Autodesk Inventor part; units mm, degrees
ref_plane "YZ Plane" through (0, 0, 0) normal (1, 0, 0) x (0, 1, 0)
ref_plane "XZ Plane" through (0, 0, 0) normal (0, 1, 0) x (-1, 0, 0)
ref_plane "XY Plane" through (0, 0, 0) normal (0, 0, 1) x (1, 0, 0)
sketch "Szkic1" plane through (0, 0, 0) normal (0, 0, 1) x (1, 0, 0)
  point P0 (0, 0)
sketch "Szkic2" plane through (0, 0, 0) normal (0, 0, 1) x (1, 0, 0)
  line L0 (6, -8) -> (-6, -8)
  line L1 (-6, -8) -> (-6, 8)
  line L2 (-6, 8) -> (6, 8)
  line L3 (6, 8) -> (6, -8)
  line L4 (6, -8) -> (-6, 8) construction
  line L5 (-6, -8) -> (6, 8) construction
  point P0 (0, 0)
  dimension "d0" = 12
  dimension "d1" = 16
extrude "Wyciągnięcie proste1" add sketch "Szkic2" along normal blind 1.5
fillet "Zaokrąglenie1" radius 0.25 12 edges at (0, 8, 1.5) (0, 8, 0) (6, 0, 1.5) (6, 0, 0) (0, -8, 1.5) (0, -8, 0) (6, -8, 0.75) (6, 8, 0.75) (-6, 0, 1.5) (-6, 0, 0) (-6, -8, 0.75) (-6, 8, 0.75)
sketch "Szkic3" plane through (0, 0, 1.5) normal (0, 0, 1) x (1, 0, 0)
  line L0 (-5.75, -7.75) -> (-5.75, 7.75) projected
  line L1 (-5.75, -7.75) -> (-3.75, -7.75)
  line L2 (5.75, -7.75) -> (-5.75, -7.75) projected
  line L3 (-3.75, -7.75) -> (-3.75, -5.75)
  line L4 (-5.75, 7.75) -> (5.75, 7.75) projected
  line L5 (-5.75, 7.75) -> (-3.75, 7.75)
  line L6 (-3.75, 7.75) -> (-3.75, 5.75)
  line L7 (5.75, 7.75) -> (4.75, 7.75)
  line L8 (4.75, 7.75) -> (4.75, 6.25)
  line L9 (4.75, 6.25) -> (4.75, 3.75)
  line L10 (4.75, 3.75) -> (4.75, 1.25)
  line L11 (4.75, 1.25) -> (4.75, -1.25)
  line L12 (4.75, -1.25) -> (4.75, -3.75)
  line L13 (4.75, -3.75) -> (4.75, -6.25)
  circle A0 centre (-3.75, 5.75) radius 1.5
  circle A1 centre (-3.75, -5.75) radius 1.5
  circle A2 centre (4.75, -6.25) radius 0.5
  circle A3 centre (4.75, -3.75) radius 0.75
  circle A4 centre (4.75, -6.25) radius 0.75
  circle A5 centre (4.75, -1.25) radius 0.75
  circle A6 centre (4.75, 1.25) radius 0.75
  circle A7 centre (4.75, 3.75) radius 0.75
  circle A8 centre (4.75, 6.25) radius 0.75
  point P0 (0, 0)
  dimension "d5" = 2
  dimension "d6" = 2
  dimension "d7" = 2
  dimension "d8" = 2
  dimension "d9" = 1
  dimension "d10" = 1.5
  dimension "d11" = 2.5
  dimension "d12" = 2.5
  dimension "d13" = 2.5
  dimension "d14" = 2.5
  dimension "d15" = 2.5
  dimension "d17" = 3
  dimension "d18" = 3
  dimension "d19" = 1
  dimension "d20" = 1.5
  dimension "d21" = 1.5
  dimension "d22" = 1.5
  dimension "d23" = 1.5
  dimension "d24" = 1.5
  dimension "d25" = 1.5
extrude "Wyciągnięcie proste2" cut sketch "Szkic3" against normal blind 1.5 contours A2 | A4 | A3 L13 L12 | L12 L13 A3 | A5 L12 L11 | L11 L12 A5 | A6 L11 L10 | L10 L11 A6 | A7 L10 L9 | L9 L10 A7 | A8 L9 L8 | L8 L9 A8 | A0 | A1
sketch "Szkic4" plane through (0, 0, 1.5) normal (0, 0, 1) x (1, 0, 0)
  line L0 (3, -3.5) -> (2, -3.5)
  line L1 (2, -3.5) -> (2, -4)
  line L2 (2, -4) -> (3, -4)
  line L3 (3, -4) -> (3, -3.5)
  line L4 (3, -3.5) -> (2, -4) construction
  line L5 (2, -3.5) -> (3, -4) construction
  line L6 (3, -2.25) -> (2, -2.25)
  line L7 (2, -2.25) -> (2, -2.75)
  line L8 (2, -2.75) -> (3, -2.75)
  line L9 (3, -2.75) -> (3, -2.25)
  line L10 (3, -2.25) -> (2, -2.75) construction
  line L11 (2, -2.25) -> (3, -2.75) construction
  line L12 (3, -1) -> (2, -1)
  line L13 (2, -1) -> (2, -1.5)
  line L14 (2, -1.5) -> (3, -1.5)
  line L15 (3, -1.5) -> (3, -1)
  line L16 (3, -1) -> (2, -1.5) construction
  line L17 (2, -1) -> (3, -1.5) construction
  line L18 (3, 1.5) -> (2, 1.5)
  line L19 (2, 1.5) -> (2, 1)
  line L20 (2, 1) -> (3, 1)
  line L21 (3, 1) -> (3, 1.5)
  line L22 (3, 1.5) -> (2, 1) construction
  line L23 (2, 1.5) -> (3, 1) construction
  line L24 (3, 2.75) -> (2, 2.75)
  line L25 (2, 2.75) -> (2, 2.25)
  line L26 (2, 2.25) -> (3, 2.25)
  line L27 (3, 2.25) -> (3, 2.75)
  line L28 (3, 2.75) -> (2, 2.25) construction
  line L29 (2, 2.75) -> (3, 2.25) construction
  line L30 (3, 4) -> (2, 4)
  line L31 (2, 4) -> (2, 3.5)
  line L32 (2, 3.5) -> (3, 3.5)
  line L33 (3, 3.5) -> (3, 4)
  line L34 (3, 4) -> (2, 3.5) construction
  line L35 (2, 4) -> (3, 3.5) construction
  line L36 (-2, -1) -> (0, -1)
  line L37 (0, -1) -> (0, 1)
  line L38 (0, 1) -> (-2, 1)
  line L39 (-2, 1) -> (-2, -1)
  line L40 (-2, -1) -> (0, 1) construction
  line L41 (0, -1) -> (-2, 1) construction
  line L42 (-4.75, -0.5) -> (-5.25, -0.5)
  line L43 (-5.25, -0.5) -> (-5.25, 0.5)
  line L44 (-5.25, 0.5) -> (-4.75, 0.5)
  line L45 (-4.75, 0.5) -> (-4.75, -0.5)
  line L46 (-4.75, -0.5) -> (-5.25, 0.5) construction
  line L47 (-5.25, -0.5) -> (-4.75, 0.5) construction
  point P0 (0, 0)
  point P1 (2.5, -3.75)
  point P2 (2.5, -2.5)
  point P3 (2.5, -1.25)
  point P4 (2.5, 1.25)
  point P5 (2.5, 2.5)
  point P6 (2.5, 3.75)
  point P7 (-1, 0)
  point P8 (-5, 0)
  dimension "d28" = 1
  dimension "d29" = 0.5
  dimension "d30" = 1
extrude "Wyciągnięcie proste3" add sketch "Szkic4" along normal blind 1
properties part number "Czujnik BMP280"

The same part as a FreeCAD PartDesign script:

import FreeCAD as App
import Part
import Sketcher


def add_polygon(sketch, points):
    """Adds a closed chain of lines whose ends are joined by coincident constraints."""
    first, n = sketch.GeometryCount, len(points)
    for a, b in zip(points, points[1:] + points[:1]):
        sketch.addGeometry(Part.LineSegment(App.Vector(*a, 0), App.Vector(*b, 0)), False)
    for i in range(n):
        sketch.addConstraint(Sketcher.Constraint("Coincident", first + i, 2, first + (i + 1) % n, 1))

doc = App.newDocument("Part")
body = doc.addObject("PartDesign::Body", "Body")

# Sketch on XY plane
sketch1 = body.newObject("Sketcher::SketchObject", "Sketch")
sketch1.AttachmentSupport = (doc.getObject("XY_Plane"), [""])
sketch1.MapMode = "FlatFace"
add_polygon(sketch1, [(-6, -8), (6, -8), (6, 8), (-6, 8)])  # lines 0-3
sketch1.addConstraint([
    Sketcher.Constraint("Horizontal", 0),
    Sketcher.Constraint("Vertical", 1),
    Sketcher.Constraint("Horizontal", 2),
    Sketcher.Constraint("Vertical", 3),
    Sketcher.Constraint("Symmetric", 0, 2, 2, 2, -1, 1),
    Sketcher.Constraint("DistanceX", 0, 1, 0, 2, 12.0),
    Sketcher.Constraint("DistanceY", 1, 1, 1, 2, 16.0),
])
pad1 = body.newObject("PartDesign::Pad", "Pad")
pad1.Profile = sketch1
pad1.Length = 1.5
doc.recompute()

fillet = body.newObject("PartDesign::Fillet", "Fillet")
fillet.Base = (pad1, ["Edge1"])
fillet.UseAllEdges = True
fillet.Radius = 0.25

# Sketch on XY plane
sketch2 = body.newObject("Sketcher::SketchObject", "Sketch001")
sketch2.AttachmentSupport = (doc.getObject("XY_Plane"), [""])
sketch2.MapMode = "FlatFace"
sketch2.AttachmentOffset = App.Placement(App.Vector(0, 0, 1.5), App.Rotation())
sketch2.addGeometry([
    Part.Circle(App.Vector(4.8, -6.2, 0), App.Vector(0, 0, 1), 0.8),  # 0
    Part.Circle(App.Vector(4.8, -3.8, 0), App.Vector(0, 0, 1), 0.8),  # 1
    Part.Circle(App.Vector(4.8, -1.2, 0), App.Vector(0, 0, 1), 0.8),  # 2
    Part.Circle(App.Vector(4.8, 1.2, 0), App.Vector(0, 0, 1), 0.8),  # 3
    Part.Circle(App.Vector(4.8, 3.8, 0), App.Vector(0, 0, 1), 0.8),  # 4
    Part.Circle(App.Vector(4.8, 6.2, 0), App.Vector(0, 0, 1), 0.8),  # 5
    Part.Circle(App.Vector(-3.8, 5.8, 0), App.Vector(0, 0, 1), 1.5),  # 6
    Part.Circle(App.Vector(-3.8, -5.8, 0), App.Vector(0, 0, 1), 1.5),  # 7
], False)
sketch2.addConstraint([
    Sketcher.Constraint("Equal", 0, 1),
    Sketcher.Constraint("Equal", 1, 2),
    Sketcher.Constraint("Equal", 2, 3),
    Sketcher.Constraint("Equal", 3, 4),
    Sketcher.Constraint("Equal", 4, 5),
    Sketcher.Constraint("Equal", 6, 7),
    Sketcher.Constraint("Symmetric", 2, 3, 3, 3, -1),
    Sketcher.Constraint("Symmetric", 1, 3, 4, 3, -1),
    Sketcher.Constraint("Symmetric", 0, 3, 5, 3, -1),
    Sketcher.Constraint("Symmetric", 6, 3, 7, 3, -1),
    Sketcher.Constraint("Vertical", 0, 3, 1, 3),
    Sketcher.Constraint("Vertical", 1, 3, 2, 3),
    Sketcher.Constraint("Diameter", 6, 3.0),
    Sketcher.Constraint("Diameter", 0, 1.5),
    Sketcher.Constraint("DistanceY", 4, 3, 6, 3, 2.0),
    Sketcher.Constraint("DistanceY", 0, 3, 1, 3, 2.5),
    Sketcher.Constraint("DistanceY", 1, 3, 2, 3, 2.5),
    Sketcher.Constraint("DistanceY", 2, 3, 3, 3, 2.5),
    Sketcher.Constraint("DistanceX", 6, 3, 5, 3, 8.5),
    Sketcher.Constraint("DistanceX", -1, 1, 0, 3, 4.75),
])
pocket1 = body.newObject("PartDesign::Pocket", "Pocket")
pocket1.Profile = sketch2
pocket1.Length = 1.5

# Sketch on XY plane
sketch3 = body.newObject("Sketcher::SketchObject", "Sketch002")
sketch3.AttachmentSupport = (doc.getObject("XY_Plane"), [""])
sketch3.MapMode = "FlatFace"
sketch3.AttachmentOffset = App.Placement(App.Vector(0, 0, 1.5), App.Rotation())
add_polygon(sketch3, [(3, -4), (3, -3.5), (2, -3.5), (2, -4)])  # lines 0-3
add_polygon(sketch3, [(3, -2.8), (3, -2.2), (2, -2.2), (2, -2.8)])  # lines 4-7
add_polygon(sketch3, [(3, -1.5), (3, -1), (2, -1), (2, -1.5)])  # lines 8-11
add_polygon(sketch3, [(3, 1), (3, 1.5), (2, 1.5), (2, 1)])  # lines 12-15
add_polygon(sketch3, [(3, 2.2), (3, 2.8), (2, 2.8), (2, 2.2)])  # lines 16-19
add_polygon(sketch3, [(3, 3.5), (3, 4), (2, 4), (2, 3.5)])  # lines 20-23
add_polygon(sketch3, [(-2, 1), (-2, -1), (0, -1), (0, 1)])  # lines 24-27
add_polygon(sketch3, [(-5.2, -0.5), (-4.8, -0.5), (-4.8, 0.5), (-5.2, 0.5)])  # lines 28-31
sketch3.addConstraint([
    Sketcher.Constraint("Vertical", 0),
    Sketcher.Constraint("Horizontal", 1),
    Sketcher.Constraint("Vertical", 2),
    Sketcher.Constraint("Horizontal", 3),
    Sketcher.Constraint("Vertical", 4),
    Sketcher.Constraint("Horizontal", 5),
    Sketcher.Constraint("Vertical", 6),
    Sketcher.Constraint("Horizontal", 7),
    Sketcher.Constraint("Vertical", 8),
    Sketcher.Constraint("Horizontal", 9),
    Sketcher.Constraint("Vertical", 10),
    Sketcher.Constraint("Horizontal", 11),
    Sketcher.Constraint("Vertical", 12),
    Sketcher.Constraint("Horizontal", 13),
    Sketcher.Constraint("Vertical", 14),
    Sketcher.Constraint("Horizontal", 15),
    Sketcher.Constraint("Vertical", 16),
    Sketcher.Constraint("Horizontal", 17),
    Sketcher.Constraint("Vertical", 18),
    Sketcher.Constraint("Horizontal", 19),
    Sketcher.Constraint("Vertical", 20),
    Sketcher.Constraint("Horizontal", 21),
    Sketcher.Constraint("Vertical", 22),
    Sketcher.Constraint("Horizontal", 23),
    Sketcher.Constraint("Vertical", 24),
    Sketcher.Constraint("Horizontal", 25),
    Sketcher.Constraint("Vertical", 26),
    Sketcher.Constraint("Horizontal", 27),
    Sketcher.Constraint("Horizontal", 28),
    Sketcher.Constraint("Vertical", 29),
    Sketcher.Constraint("Horizontal", 30),
    Sketcher.Constraint("Vertical", 31),
    Sketcher.Constraint("Symmetric", 14, 2, 24, 2, -1, 1),
    Sketcher.Constraint("Symmetric", 25, 2, 26, 2, -1, 1),
    Sketcher.Constraint("Symmetric", 9, 2, 27, 2, -1, 1),
    Sketcher.Constraint("Symmetric", 11, 2, 12, 2, -1),
    Sketcher.Constraint("Symmetric", 7, 2, 16, 2, -1),
    Sketcher.Constraint("Symmetric", 5, 2, 18, 2, -1),
    Sketcher.Constraint("Symmetric", 3, 2, 20, 2, -1),
    Sketcher.Constraint("Symmetric", 1, 2, 22, 2, -1),
    Sketcher.Constraint("Vertical", 3, 2, 4, 2),
    Sketcher.Constraint("Vertical", 2, 2, 5, 2),
    Sketcher.Constraint("Vertical", 7, 2, 8, 2),
    Sketcher.Constraint("Vertical", 6, 2, 9, 2),
    Sketcher.Constraint("Equal", 30, 0),
    Sketcher.Constraint("Equal", 2, 4),
    Sketcher.Constraint("Equal", 6, 8),
    Sketcher.Constraint("Equal", 27, 24),
    Sketcher.Constraint("Equal", 23, 29),
    Sketcher.Constraint("DistanceX", 1, 2, 1, 1, 1.0),
    Sketcher.Constraint("DistanceX", 28, 1, 28, 2, 0.5),
    Sketcher.Constraint("DistanceY", 8, 2, -1, 1, 1.0),
    Sketcher.Constraint("DistanceY", 28, 2, -1, 1, 0.5),
    Sketcher.Constraint("DistanceY", 2, 2, -1, 1, 4.0),
    Sketcher.Constraint("DistanceY", 4, 2, -1, 1, 2.25),
    Sketcher.Constraint("DistanceX", 28, 2, -1, 1, 4.75),
])
pad2 = body.newObject("PartDesign::Pad", "Pad001")
pad2.Profile = sketch3
pad2.Length = 1

doc.recompute()
